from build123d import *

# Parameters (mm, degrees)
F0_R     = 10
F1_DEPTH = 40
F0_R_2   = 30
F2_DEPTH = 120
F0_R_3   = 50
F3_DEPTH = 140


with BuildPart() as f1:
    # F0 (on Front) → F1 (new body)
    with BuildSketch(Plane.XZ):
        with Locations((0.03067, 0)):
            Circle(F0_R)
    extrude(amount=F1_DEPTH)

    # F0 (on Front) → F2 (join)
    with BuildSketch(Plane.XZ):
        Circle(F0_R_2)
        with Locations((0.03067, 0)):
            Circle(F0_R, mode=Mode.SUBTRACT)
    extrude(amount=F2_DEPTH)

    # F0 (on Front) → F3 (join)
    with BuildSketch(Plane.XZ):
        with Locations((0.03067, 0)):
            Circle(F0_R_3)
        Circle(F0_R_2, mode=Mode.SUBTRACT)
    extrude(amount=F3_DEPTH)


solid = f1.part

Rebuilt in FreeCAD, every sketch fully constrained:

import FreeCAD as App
import Part
import Sketcher

V = App.Vector
Q = App.Units.Quantity

doc = App.newDocument("Part")
body = doc.addObject("PartDesign::Body", "Body")

# Sketch on XZ plane
sketch1 = doc.addObject("Sketcher::SketchObject", "Sketch")
body.addObject(sketch1)
sketch1.AttachmentSupport = (doc.XZ_Plane, [""])
sketch1.MapMode = "FlatFace"
sketch1.addGeometry(Part.Circle(V(0.03067, 0, 0), V(0, 0, 1), 10), False)
sketch1.addConstraint([
    Sketcher.Constraint("PointOnObject", 0, 3, -1),
    Sketcher.Constraint("Diameter", 0, Q("20 mm")),
    Sketcher.Constraint("DistanceX", -1, 1, 0, 3, Q("0.03067 mm")),
])
pad1 = doc.addObject("PartDesign::Pad", "Pad")
body.addObject(pad1)
pad1.Profile = sketch1
pad1.Length = 40

# Sketch on XZ plane
sketch2 = doc.addObject("Sketcher::SketchObject", "Sketch001")
body.addObject(sketch2)
sketch2.AttachmentSupport = (doc.XZ_Plane, [""])
sketch2.MapMode = "FlatFace"
sketch2.addGeometry([
    Part.Circle(V(0, 0, 0), V(0, 0, 1), 30),
    Part.Circle(V(0.03067, 0, 0), V(0, 0, 1), 10),
], False)
sketch2.addConstraint([
    Sketcher.Constraint("Coincident", 0, 3, -1, 1),
    Sketcher.Constraint("PointOnObject", 1, 3, -1),
    Sketcher.Constraint("Diameter", 0, Q("60 mm")),
    Sketcher.Constraint("Diameter", 1, Q("20 mm")),
    Sketcher.Constraint("DistanceX", -1, 1, 1, 3, Q("0.03067 mm")),
])
pad2 = doc.addObject("PartDesign::Pad", "Pad001")
body.addObject(pad2)
pad2.Profile = sketch2
pad2.Length = 120

# Sketch on XZ plane
sketch3 = doc.addObject("Sketcher::SketchObject", "Sketch002")
body.addObject(sketch3)
sketch3.AttachmentSupport = (doc.XZ_Plane, [""])
sketch3.MapMode = "FlatFace"
sketch3.addGeometry([
    Part.Circle(V(0.03067, 0, 0), V(0, 0, 1), 50),
    Part.Circle(V(0, 0, 0), V(0, 0, 1), 30),
], False)
sketch3.addConstraint([
    Sketcher.Constraint("Coincident", 1, 3, -1, 1),
    Sketcher.Constraint("PointOnObject", 0, 3, -1),
    Sketcher.Constraint("Diameter", 0, Q("100 mm")),
    Sketcher.Constraint("Diameter", 1, Q("60 mm")),
    Sketcher.Constraint("DistanceX", -1, 1, 0, 3, Q("0.03067 mm")),
])
pad3 = doc.addObject("PartDesign::Pad", "Pad002")
body.addObject(pad3)
pad3.Profile = sketch3
pad3.Length = 140

doc.recompute()
